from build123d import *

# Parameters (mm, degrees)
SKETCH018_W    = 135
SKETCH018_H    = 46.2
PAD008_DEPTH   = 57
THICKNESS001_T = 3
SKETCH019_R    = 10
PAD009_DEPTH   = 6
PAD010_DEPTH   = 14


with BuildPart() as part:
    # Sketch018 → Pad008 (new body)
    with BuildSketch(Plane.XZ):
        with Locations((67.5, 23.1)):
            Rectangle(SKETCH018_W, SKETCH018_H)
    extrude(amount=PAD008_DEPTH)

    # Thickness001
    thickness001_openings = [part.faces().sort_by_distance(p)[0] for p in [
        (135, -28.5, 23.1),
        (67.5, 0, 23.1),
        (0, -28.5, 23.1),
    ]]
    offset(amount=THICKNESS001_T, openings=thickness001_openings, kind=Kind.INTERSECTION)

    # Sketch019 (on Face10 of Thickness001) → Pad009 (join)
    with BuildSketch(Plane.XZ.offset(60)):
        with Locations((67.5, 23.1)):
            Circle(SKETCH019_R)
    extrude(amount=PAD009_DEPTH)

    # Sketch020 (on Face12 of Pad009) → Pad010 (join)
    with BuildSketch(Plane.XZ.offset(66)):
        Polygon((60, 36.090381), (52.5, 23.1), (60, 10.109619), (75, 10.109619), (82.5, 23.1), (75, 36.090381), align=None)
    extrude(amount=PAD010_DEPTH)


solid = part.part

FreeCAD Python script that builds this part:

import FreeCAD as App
import Part
import Sketcher
from FreeCAD import Vector
Q = App.Units.Quantity


def faces_at(feature, points):
    """Names of the faces that lie closest to the given points."""
    faces = feature.Shape.Faces
    near = lambda p: min(range(len(faces)), key=lambda i: faces[i].distToShape(Part.Vertex(*p))[0])
    return sorted({f"Face{near(p) + 1}" for p in points})

doc = App.newDocument("Part")
params = doc.addObject("Spreadsheet::Sheet", "Params")
for row, (alias, value) in enumerate([
    ("sketch1_width", "135 mm"),
    ("sketch1_height", "46.2 mm"),
    ("pad1_length", "57 mm"),
    ("thickness_wall", "3 mm"),
    ("sketch2_diameter", "20 mm"),
    ("pad2_length", "6 mm"),
    ("sketch3_width", "15 mm"),
    ("sketch3_length", "15 mm"),
    ("pad3_length", "14 mm"),
], start=1):
    params.set(f"A{row}", alias)
    params.set(f"B{row}", "=" + value)
    params.setAlias(f"B{row}", alias)

body = doc.addObject("PartDesign::Body", "Body")

# Sketch on XZ plane
sketch1 = body.newObject("Sketcher::SketchObject", "Sketch")
sketch1.AttachmentSupport = (doc.getObject("XZ_Plane"), [""])
sketch1.MapMode = "FlatFace"
sketch1.addGeometry([
    Part.LineSegment(Vector(0, 46, 0), Vector(0, 0, 0)),
    Part.LineSegment(Vector(0, 0, 0), Vector(135, 0, 0)),
    Part.LineSegment(Vector(135, 0, 0), Vector(135, 46, 0)),
    Part.LineSegment(Vector(135, 46, 0), Vector(0, 46, 0)),
], False)
sketch1.addConstraint([
    Sketcher.Constraint("Coincident", 0, 2, 1, 1),
    Sketcher.Constraint("Coincident", 1, 2, 2, 1),
    Sketcher.Constraint("Coincident", 2, 2, 3, 1),
    Sketcher.Constraint("Coincident", 3, 2, 0, 1),
    Sketcher.Constraint("Vertical", 0),
    Sketcher.Constraint("Horizontal", 1),
    Sketcher.Constraint("Vertical", 2),
    Sketcher.Constraint("Horizontal", 3),
    Sketcher.Constraint("Coincident", 0, 2, -1, 1),
    Sketcher.Constraint("DistanceX", 1, 1, 1, 2, Q("135 mm")),
    Sketcher.Constraint("DistanceY", 0, 2, 0, 1, Q("46.2 mm")),
])
sketch1.setExpression("Constraints[9]", "Params.sketch1_width")
sketch1.setExpression("Constraints[10]", "Params.sketch1_height")
pad1 = body.newObject("PartDesign::Pad", "Pad")
pad1.Profile = sketch1
pad1.setExpression("Length", "Params.pad1_length")
doc.recompute()

thickness = body.newObject("PartDesign::Thickness", "Thickness")
thickness.Base = (pad1, faces_at(pad1, [(135, -28.5, 23.1), (67.5, 0, 23.1), (0, -28.5, 23.1)]))
thickness.setExpression("Value", "Params.thickness_wall")
thickness.Reversed = False
thickness.Join = "Intersection"

# Sketch on XZ plane
sketch2 = body.newObject("Sketcher::SketchObject", "Sketch001")
sketch2.AttachmentSupport = (doc.getObject("XZ_Plane"), [""])
sketch2.MapMode = "FlatFace"
sketch2.AttachmentOffset = App.Placement(Vector(0, 0, 60), App.Rotation())
sketch2.addGeometry(Part.Circle(Vector(68, 23, 0), Vector(0, 0, 1), 10), False)
sketch2.addConstraint([
    Sketcher.Constraint("Diameter", 0, Q("20 mm")),
    Sketcher.Constraint("DistanceX", -1, 1, 0, 3, Q("67.5 mm")),
    Sketcher.Constraint("DistanceY", -1, 1, 0, 3, Q("23.1 mm")),
])
sketch2.setExpression("Constraints[0]", "Params.sketch2_diameter")
pad2 = body.newObject("PartDesign::Pad", "Pad001")
pad2.Profile = sketch2
pad2.setExpression("Length", "Params.pad2_length")

# Sketch on XZ plane
sketch3 = body.newObject("Sketcher::SketchObject", "Sketch002")
sketch3.AttachmentSupport = (doc.getObject("XZ_Plane"), [""])
sketch3.MapMode = "FlatFace"
sketch3.AttachmentOffset = App.Placement(Vector(0, 0, 66), App.Rotation())
sketch3.addGeometry([
    Part.LineSegment(Vector(60, 36, 0), Vector(52, 23, 0)),  # 0
    Part.LineSegment(Vector(52, 23, 0), Vector(60, 10, 0)),  # 1
    Part.LineSegment(Vector(60, 10, 0), Vector(75, 10, 0)),  # 2
    Part.LineSegment(Vector(75, 10, 0), Vector(82, 23, 0)),  # 3
    Part.LineSegment(Vector(82, 23, 0), Vector(75, 36, 0)),  # 4
    Part.LineSegment(Vector(75, 36, 0), Vector(60, 36, 0)),  # 5
], False)
sketch3.addConstraint([
    Sketcher.Constraint("Coincident", 0, 2, 1, 1),
    Sketcher.Constraint("Coincident", 1, 2, 2, 1),
    Sketcher.Constraint("Coincident", 2, 2, 3, 1),
    Sketcher.Constraint("Coincident", 3, 2, 4, 1),
    Sketcher.Constraint("Coincident", 4, 2, 5, 1),
    Sketcher.Constraint("Coincident", 5, 2, 0, 1),
    Sketcher.Constraint("Horizontal", 2),
    Sketcher.Constraint("Horizontal", 5),
    Sketcher.Constraint("Parallel", 0, 3),
    Sketcher.Constraint("Parallel", 1, 4),
    Sketcher.Constraint("Horizontal", 0, 2, 3, 2),
    Sketcher.Constraint("Vertical", 2, 2, 4, 2),
    Sketcher.Constraint("Vertical", 1, 2, 5, 2),
    Sketcher.Constraint("DistanceX", 2, 1, 2, 2, Q("15 mm")),
    Sketcher.Constraint("Angle", 0, Q("-120 deg")),
    Sketcher.Constraint("Distance", 0, Q("15 mm")),
    Sketcher.Constraint("DistanceX", -1, 1, 1, 2, Q("60 mm")),
    Sketcher.Constraint("DistanceY", -1, 1, 0, 2, Q("23.1 mm")),
])
sketch3.setExpression("Constraints[13]", "Params.sketch3_width")
sketch3.setExpression("Constraints[15]", "Params.sketch3_length")
pad3 = body.newObject("PartDesign::Pad", "Pad002")
pad3.Profile = sketch3
pad3.setExpression("Length", "Params.pad3_length")

doc.recompute()
